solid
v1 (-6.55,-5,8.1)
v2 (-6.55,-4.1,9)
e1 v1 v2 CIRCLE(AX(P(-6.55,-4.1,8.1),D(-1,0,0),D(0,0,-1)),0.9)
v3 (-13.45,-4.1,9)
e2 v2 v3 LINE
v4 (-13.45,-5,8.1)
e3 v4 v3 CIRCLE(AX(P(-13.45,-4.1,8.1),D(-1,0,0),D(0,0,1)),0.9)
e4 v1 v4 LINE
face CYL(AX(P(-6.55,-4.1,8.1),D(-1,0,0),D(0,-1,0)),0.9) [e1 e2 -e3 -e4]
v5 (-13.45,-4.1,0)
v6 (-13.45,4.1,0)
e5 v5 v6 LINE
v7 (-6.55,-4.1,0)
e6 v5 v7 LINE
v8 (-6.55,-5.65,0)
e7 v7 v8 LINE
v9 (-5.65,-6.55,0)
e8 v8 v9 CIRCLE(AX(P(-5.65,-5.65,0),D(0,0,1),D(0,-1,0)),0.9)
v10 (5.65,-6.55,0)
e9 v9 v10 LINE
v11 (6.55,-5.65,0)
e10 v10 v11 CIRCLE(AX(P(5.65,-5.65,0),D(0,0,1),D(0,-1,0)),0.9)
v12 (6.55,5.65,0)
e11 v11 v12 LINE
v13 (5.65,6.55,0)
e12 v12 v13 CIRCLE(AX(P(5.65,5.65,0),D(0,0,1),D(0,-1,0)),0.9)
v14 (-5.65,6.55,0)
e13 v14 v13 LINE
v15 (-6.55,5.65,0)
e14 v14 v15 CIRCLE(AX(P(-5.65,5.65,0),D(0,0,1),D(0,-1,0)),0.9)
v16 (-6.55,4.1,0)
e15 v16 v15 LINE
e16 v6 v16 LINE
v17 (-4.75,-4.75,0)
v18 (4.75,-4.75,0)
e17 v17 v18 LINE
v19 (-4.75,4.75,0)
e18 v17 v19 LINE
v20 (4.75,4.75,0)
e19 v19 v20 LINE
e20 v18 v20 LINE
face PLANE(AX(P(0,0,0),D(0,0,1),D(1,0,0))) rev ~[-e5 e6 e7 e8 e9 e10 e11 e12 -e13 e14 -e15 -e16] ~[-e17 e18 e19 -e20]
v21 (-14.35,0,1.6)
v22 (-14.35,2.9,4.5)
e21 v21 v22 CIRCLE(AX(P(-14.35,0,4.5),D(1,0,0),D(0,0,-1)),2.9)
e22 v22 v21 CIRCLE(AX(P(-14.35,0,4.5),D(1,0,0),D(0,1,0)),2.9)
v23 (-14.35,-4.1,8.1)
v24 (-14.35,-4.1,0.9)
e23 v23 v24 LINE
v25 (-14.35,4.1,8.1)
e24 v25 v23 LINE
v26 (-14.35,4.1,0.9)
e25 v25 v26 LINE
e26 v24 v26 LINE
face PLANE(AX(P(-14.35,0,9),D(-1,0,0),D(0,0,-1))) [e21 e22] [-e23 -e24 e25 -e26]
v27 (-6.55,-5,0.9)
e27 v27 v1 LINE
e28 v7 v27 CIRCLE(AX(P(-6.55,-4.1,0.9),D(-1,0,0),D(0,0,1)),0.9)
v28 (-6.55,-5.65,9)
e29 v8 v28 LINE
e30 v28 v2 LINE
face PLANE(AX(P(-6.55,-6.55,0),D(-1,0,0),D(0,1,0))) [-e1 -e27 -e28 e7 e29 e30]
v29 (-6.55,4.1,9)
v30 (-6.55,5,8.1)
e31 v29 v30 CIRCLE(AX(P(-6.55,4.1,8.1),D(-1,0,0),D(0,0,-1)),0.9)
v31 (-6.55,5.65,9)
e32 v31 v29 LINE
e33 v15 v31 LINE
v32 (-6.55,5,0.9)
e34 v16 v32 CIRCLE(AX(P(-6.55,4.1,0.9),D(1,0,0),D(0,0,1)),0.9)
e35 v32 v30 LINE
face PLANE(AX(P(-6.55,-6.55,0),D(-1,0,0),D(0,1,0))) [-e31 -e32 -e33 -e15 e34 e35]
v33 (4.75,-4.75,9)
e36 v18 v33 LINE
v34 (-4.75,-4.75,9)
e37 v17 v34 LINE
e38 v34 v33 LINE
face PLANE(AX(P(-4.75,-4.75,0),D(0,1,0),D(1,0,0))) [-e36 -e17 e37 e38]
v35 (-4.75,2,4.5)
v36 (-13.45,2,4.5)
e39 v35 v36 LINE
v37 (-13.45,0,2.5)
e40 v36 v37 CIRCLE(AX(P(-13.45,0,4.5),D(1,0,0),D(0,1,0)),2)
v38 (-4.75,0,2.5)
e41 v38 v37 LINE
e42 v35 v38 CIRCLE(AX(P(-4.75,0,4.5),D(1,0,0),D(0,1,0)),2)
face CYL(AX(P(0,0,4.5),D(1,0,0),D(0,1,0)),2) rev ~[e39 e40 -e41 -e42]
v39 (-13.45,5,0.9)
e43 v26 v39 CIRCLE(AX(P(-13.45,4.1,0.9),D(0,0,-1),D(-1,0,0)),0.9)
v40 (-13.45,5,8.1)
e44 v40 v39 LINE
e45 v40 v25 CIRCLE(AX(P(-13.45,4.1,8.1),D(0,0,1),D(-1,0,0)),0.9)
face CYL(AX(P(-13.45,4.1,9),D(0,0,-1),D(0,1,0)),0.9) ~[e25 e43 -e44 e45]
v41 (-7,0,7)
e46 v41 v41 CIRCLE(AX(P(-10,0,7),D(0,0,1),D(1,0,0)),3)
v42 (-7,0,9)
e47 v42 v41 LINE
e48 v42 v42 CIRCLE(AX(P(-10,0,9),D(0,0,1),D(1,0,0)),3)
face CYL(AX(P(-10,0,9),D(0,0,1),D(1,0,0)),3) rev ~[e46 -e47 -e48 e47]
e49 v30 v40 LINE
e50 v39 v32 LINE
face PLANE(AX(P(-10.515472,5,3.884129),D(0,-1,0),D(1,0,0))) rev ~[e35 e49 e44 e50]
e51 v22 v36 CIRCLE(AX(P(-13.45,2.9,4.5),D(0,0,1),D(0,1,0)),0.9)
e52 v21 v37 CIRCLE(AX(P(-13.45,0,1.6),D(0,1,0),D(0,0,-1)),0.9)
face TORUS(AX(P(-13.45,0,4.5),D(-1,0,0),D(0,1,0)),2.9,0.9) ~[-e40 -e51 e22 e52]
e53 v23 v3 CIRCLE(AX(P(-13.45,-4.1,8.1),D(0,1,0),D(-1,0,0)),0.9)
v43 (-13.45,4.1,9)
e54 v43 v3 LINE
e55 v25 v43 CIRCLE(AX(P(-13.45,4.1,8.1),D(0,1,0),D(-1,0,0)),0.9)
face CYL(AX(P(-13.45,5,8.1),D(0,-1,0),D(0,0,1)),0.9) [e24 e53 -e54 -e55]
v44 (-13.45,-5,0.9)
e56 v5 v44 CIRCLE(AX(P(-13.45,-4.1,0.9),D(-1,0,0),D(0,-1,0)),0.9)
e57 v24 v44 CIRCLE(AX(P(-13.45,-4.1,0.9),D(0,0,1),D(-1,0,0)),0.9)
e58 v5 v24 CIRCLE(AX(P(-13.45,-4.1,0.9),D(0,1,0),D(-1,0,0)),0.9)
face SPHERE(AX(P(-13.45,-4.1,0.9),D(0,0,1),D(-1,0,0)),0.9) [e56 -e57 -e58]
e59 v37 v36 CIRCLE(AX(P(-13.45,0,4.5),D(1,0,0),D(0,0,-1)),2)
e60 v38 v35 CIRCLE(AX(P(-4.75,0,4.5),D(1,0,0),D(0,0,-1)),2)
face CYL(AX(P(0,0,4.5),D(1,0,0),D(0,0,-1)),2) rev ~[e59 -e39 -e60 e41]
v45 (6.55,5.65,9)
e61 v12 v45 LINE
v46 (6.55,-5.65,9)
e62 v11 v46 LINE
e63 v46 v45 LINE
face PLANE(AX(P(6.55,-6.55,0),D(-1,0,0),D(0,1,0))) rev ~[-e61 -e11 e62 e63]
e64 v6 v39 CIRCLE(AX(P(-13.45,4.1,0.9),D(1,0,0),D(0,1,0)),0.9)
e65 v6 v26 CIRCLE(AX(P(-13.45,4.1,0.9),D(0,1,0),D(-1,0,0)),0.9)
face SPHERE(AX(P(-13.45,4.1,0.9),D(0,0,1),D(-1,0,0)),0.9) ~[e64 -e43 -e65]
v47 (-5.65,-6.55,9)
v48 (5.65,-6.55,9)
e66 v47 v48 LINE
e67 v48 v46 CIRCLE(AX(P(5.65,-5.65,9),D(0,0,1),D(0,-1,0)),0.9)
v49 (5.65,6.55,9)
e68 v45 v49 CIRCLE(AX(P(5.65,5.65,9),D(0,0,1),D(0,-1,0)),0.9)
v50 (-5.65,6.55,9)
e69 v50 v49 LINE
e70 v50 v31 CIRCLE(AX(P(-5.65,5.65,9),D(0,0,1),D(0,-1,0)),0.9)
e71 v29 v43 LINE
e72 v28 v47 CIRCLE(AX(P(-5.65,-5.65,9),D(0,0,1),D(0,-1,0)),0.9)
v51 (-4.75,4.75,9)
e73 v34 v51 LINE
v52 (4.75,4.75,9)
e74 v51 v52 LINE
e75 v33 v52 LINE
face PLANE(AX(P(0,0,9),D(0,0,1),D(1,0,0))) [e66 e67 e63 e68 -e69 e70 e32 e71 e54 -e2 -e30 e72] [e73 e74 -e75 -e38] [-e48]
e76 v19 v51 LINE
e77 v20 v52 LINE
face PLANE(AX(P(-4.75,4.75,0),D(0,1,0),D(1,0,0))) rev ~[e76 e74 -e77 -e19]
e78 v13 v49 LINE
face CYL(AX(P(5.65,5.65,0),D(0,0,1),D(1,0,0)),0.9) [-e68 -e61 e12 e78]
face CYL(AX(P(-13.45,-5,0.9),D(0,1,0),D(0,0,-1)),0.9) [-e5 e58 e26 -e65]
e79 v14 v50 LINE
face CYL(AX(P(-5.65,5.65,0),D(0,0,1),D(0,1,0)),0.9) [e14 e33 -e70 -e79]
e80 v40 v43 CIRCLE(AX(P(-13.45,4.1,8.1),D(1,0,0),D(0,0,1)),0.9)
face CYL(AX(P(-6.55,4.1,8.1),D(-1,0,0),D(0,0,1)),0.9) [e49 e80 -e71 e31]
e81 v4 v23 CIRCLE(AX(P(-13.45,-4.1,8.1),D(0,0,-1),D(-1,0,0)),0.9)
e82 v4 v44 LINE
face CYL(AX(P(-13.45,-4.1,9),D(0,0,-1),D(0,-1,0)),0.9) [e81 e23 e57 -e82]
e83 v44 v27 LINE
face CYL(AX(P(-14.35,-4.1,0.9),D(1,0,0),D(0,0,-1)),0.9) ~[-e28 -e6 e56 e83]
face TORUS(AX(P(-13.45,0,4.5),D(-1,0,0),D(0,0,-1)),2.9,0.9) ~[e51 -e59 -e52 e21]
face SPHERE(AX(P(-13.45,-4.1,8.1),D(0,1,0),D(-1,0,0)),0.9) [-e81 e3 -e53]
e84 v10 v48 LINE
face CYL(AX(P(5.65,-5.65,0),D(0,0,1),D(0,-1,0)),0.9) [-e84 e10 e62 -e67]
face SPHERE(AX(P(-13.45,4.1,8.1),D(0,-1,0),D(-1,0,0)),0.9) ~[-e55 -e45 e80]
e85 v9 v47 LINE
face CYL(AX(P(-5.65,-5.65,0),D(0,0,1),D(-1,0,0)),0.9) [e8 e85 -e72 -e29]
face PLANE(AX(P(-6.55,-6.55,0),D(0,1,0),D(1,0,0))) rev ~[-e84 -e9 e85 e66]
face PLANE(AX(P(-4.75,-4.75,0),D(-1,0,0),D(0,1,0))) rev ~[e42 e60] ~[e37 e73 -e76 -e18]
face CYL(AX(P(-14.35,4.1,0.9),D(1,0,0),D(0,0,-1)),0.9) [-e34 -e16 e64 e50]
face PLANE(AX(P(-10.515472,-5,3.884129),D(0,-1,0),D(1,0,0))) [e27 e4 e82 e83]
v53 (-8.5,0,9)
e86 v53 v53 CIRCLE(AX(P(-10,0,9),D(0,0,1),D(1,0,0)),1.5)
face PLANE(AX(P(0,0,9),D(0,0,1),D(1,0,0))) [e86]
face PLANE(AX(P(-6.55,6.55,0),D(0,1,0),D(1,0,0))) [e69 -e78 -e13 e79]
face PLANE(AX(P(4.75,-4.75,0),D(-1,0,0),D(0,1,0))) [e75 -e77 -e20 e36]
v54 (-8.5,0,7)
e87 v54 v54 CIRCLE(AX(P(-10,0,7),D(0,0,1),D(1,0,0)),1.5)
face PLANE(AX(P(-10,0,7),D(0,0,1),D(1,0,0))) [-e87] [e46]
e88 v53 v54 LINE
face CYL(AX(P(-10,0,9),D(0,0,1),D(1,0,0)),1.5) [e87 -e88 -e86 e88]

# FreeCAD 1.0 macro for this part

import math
import FreeCAD as App
import Part
import Sketcher
from FreeCAD import Vector
Q = App.Units.Quantity


def edges_at(feature, points):
    """Names of the edges that pass closest to the given points."""
    edges = feature.Shape.Edges
    near = lambda p: min(range(len(edges)), key=lambda i: edges[i].distToShape(Part.Vertex(*p))[0])
    return sorted({f"Edge{near(p) + 1}" for p in points})


def add_polygon(sketch, points):
    """Adds a closed chain of lines whose ends are joined by coincident constraints."""
    first, n = sketch.GeometryCount, len(points)
    for a, b in zip(points, points[1:] + points[:1]):
        sketch.addGeometry(Part.LineSegment(App.Vector(*a, 0), App.Vector(*b, 0)), False)
    for i in range(n):
        sketch.addConstraint(Sketcher.Constraint("Coincident", first + i, 2, first + (i + 1) % n, 1))

doc = App.newDocument("Part")
params = doc.addObject("Spreadsheet::Sheet", "Params")
for row, (alias, value) in enumerate([
    ("sketch1_width", "13.1 mm"),
    ("sketch1_width2", "9.5 mm"),
    ("pad1_length", "9 mm"),
    ("sketch2_height", "9 mm"),
    ("sketch2_width", "7.8 mm"),
    ("pad2_length", "10 mm"),
    ("sketch3_diameter", "6 mm"),
    ("sketch3_diameter2", "3 mm"),
    ("pocket1_length", "2 mm"),
    ("sketch4_radius", "2 mm"),
    ("pocket2_length", "25 mm"),
    ("fillet_radius", "0.9 mm"),
], start=1):
    params.set(f"A{row}", alias)
    params.set(f"B{row}", "=" + value)
    params.setAlias(f"B{row}", alias)

body = doc.addObject("PartDesign::Body", "Body")

# Sketch on XY plane
sketch1 = body.newObject("Sketcher::SketchObject", "Sketch")
sketch1.AttachmentSupport = (doc.getObject("XY_Plane"), [""])
sketch1.MapMode = "FlatFace"
add_polygon(sketch1, [(-7, 7), (-7, -7), (7, -7), (7, 7)])  # lines 0-3
add_polygon(sketch1, [(5, -5), (-5, -5), (-5, 5), (5, 5)])  # lines 4-7
sketch1.addConstraint([
    Sketcher.Constraint("Vertical", 0),
    Sketcher.Constraint("Horizontal", 1),
    Sketcher.Constraint("Vertical", 2),
    Sketcher.Constraint("Horizontal", 3),
    Sketcher.Constraint("Horizontal", 4),
    Sketcher.Constraint("Vertical", 5),
    Sketcher.Constraint("Horizontal", 6),
    Sketcher.Constraint("Vertical", 7),
    Sketcher.Constraint("Symmetric", 0, 2, 2, 2, -1, 1),
    Sketcher.Constraint("Symmetric", 4, 2, 6, 2, -1, 1),
    Sketcher.Constraint("Equal", 3, 0),
    Sketcher.Constraint("Equal", 6, 5),
    Sketcher.Constraint("DistanceX", 1, 1, 1, 2, Q("13.1 mm")),
    Sketcher.Constraint("DistanceX", 4, 2, 4, 1, Q("9.5 mm")),
])
sketch1.setExpression("Constraints[20]", "Params.sketch1_width")
sketch1.setExpression("Constraints[21]", "Params.sketch1_width2")
pad1 = body.newObject("PartDesign::Pad", "Pad")
pad1.Profile = sketch1
pad1.setExpression("Length", "Params.pad1_length")

# Sketch on XZ plane
sketch2 = body.newObject("Sketcher::SketchObject", "Sketch001")
sketch2.AttachmentSupport = (doc.getObject("XZ_Plane"), [""])
sketch2.MapMode = "FlatFace"
add_polygon(sketch2, [(-7, 0), (-7, 9), (-14, 9), (-14, 0)])  # lines 0-3
sketch2.addConstraint([
    Sketcher.Constraint("Vertical", 0),
    Sketcher.Constraint("Horizontal", 1),
    Sketcher.Constraint("Vertical", 2),
    Sketcher.Constraint("Horizontal", 3),
    Sketcher.Constraint("PointOnObject", 2, 2, -1),
    Sketcher.Constraint("DistanceY", 0, 1, 0, 2, Q("9 mm")),
    Sketcher.Constraint("DistanceX", 1, 2, 1, 1, Q("7.8 mm")),
    Sketcher.Constraint("DistanceX", 0, 2, -1, 1, Q("6.55 mm")),
])
sketch2.setExpression("Constraints[9]", "Params.sketch2_height")
sketch2.setExpression("Constraints[10]", "Params.sketch2_width")
pad2 = body.newObject("PartDesign::Pad", "Pad001")
pad2.Profile = sketch2
pad2.setExpression("Length", "Params.pad2_length")
pad2.Midplane = True

# Sketch on XY plane
sketch3 = body.newObject("Sketcher::SketchObject", "Sketch002")
sketch3.AttachmentSupport = (doc.getObject("XY_Plane"), [""])
sketch3.MapMode = "FlatFace"
sketch3.AttachmentOffset = App.Placement(Vector(0, 0, 9), App.Rotation())
sketch3.addGeometry([
    Part.Circle(Vector(-10, 0, 0), Vector(0, 0, 1), 3),
    Part.Circle(Vector(-10, 0, 0), Vector(0, 0, 1), 1.5),
], False)
sketch3.addConstraint([
    Sketcher.Constraint("Coincident", 1, 3, 0, 3),
    Sketcher.Constraint("PointOnObject", 0, 3, -1),
    Sketcher.Constraint("Diameter", 0, Q("6 mm")),
    Sketcher.Constraint("Diameter", 1, Q("3 mm")),
    Sketcher.Constraint("DistanceX", 0, 3, -1, 1, Q("10 mm")),
])
sketch3.setExpression("Constraints[2]", "Params.sketch3_diameter")
sketch3.setExpression("Constraints[3]", "Params.sketch3_diameter2")
pocket1 = body.newObject("PartDesign::Pocket", "Pocket")
pocket1.Profile = sketch3
pocket1.setExpression("Length", "Params.pocket1_length")

# Sketch on YZ plane
sketch4 = body.newObject("Sketcher::SketchObject", "Sketch003")
sketch4.AttachmentSupport = (doc.getObject("YZ_Plane"), [""])
sketch4.MapMode = "FlatFace"
sketch4.addGeometry([
    Part.ArcOfCircle(Part.Circle(Vector(0, 4.5, 0), Vector(0, 0, 1), 2), math.radians(-90), math.radians(0)),
    Part.ArcOfCircle(Part.Circle(Vector(0, 4.5, 0), Vector(0, 0, 1), 2), math.radians(0), math.radians(270)),
], False)
sketch4.addConstraint([
    Sketcher.Constraint("Tangent", 0, 1, 1, 2),
    Sketcher.Constraint("Coincident", 1, 1, 0, 2),
    Sketcher.Constraint("PointOnObject", 0, 3, -2),
    Sketcher.Constraint("PointOnObject", 0, 1, -2),
    Sketcher.Constraint("Horizontal", 0, 3, 1, 1),
    Sketcher.Constraint("Radius", 0, Q("2 mm")),
    Sketcher.Constraint("DistanceY", -1, 1, 0, 3, Q("4.5 mm")),
])
sketch4.setExpression("Constraints[5]", "Params.sketch4_radius")
pocket2 = body.newObject("PartDesign::Pocket", "Pocket001")
pocket2.Profile = sketch4
pocket2.setExpression("Length", "Params.pocket2_length")
doc.recompute()

fillet = body.newObject("PartDesign::Fillet", "Fillet")
fillet.Base = (pocket2, edges_at(pocket2, [
    (-14.35, 0, 9),
    (-14.35, 5, 4.5),
    (-14.35, -5, 4.5),
    (-14.35, 0, 0),
    (-14.35, -1.414, 5.914),
    (-6.55, 6.55, 4.5),
    (6.55, 6.55, 4.5),
    (-6.55, -6.55, 4.5),
    (-10.45, 5, 9),
    (-10.45, 5, 0),
    (6.55, -6.55, 4.5),
    (-10.45, -5, 0),
    (-10.45, -5, 9),
]))
fillet.setExpression("Radius", "Params.fillet_radius")

doc.recompute()
